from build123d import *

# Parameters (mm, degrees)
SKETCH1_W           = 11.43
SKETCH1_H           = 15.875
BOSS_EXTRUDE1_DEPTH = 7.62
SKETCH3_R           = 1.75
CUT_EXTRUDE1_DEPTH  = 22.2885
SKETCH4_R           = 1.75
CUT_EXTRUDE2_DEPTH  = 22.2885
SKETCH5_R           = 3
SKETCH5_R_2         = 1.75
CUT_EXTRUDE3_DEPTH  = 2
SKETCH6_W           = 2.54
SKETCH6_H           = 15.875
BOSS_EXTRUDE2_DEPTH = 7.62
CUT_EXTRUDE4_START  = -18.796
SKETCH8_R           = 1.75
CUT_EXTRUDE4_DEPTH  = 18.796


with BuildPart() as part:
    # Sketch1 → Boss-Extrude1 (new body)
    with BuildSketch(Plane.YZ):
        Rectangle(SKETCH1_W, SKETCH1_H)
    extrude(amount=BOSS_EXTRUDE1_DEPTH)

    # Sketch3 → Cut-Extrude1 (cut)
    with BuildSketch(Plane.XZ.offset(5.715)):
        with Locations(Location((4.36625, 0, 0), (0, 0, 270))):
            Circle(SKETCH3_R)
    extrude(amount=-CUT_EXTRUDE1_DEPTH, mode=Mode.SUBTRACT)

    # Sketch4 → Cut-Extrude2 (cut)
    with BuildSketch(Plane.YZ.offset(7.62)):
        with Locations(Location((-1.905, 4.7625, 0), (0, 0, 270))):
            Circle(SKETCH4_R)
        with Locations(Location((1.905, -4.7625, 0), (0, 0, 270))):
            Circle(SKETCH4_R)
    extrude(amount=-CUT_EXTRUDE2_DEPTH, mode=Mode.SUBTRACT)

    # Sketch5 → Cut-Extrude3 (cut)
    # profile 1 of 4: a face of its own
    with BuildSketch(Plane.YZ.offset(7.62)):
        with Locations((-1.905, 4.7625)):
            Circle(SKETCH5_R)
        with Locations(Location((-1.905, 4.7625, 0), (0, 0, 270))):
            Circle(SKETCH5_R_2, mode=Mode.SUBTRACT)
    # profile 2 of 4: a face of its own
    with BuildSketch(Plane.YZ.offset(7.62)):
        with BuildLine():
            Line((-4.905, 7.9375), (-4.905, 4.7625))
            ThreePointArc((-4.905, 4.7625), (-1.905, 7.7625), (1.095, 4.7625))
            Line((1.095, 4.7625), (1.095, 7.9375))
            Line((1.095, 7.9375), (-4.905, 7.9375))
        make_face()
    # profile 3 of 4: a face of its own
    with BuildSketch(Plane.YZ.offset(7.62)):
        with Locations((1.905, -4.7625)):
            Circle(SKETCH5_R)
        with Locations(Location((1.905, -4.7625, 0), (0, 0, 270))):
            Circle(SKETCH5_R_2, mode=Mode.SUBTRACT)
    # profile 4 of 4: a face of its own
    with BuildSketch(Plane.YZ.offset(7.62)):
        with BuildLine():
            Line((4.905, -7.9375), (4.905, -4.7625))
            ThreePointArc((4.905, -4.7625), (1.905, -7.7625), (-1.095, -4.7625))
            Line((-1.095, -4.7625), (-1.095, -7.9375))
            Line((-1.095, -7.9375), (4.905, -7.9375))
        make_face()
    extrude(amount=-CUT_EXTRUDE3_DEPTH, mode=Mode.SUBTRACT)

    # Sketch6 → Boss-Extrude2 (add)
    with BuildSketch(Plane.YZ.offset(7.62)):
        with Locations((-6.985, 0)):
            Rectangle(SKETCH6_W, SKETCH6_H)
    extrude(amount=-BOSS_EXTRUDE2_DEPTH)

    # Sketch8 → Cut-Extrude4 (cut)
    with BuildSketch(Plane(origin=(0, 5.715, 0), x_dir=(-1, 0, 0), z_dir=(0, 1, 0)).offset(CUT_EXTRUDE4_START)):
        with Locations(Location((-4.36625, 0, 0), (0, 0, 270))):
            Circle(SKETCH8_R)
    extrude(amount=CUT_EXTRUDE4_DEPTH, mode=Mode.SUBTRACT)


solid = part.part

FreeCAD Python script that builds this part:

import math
import FreeCAD as App
import Part
import Sketcher
from FreeCAD import Vector
Q = App.Units.Quantity


def add_polygon(sketch, points):
    """Adds a closed chain of lines whose ends are joined by coincident constraints."""
    first, n = sketch.GeometryCount, len(points)
    for a, b in zip(points, points[1:] + points[:1]):
        sketch.addGeometry(Part.LineSegment(App.Vector(*a, 0), App.Vector(*b, 0)), False)
    for i in range(n):
        sketch.addConstraint(Sketcher.Constraint("Coincident", first + i, 2, first + (i + 1) % n, 1))

doc = App.newDocument("Part")
body = doc.addObject("PartDesign::Body", "Body")

# Sketch on YZ plane
sketch1 = body.newObject("Sketcher::SketchObject", "Sketch")
sketch1.AttachmentSupport = (doc.getObject("YZ_Plane"), [""])
sketch1.MapMode = "FlatFace"
add_polygon(sketch1, [(-5.715, 7.9375), (-5.715, -7.9375), (5.715, -7.9375), (5.715, 7.9375)])  # lines 0-3
sketch1.addConstraint([
    Sketcher.Constraint("Vertical", 0),
    Sketcher.Constraint("Horizontal", 1),
    Sketcher.Constraint("Vertical", 2),
    Sketcher.Constraint("Horizontal", 3),
    Sketcher.Constraint("Symmetric", 0, 2, 2, 2, -1, 1),
    Sketcher.Constraint("DistanceX", 1, 1, 1, 2, Q("0.45 in")),
    Sketcher.Constraint("DistanceY", 0, 2, 0, 1, Q("0.625 in")),
])
pad1 = body.newObject("PartDesign::Pad", "Pad")
pad1.Profile = sketch1
pad1.Length = Q("0.3 in")

# Sketch on XZ plane
sketch2 = body.newObject("Sketcher::SketchObject", "Sketch001")
sketch2.AttachmentSupport = (doc.getObject("XZ_Plane"), [""])
sketch2.MapMode = "FlatFace"
sketch2.AttachmentOffset = App.Placement(Vector(0, 0, 0.225 * 25.4), App.Rotation())
sketch2.addGeometry(Part.Circle(Vector(4.36625, 0, 0), Vector(0, 0, 1), 1.75), False)
sketch2.addConstraint([
    Sketcher.Constraint("PointOnObject", 0, 3, -1),
    Sketcher.Constraint("Diameter", 0, Q("3.5 mm")),
    Sketcher.Constraint("DistanceX", -1, 1, 0, 3, Q("4.36625 mm")),
])
pocket1 = body.newObject("PartDesign::Pocket", "Pocket")
pocket1.Profile = sketch2
pocket1.Length = Q("0.8775 in")

# Sketch on YZ plane
sketch3 = body.newObject("Sketcher::SketchObject", "Sketch002")
sketch3.AttachmentSupport = (doc.getObject("YZ_Plane"), [""])
sketch3.MapMode = "FlatFace"
sketch3.AttachmentOffset = App.Placement(Vector(0, 0, 0.3 * 25.4), App.Rotation())
sketch3.addGeometry([
    Part.Circle(Vector(-1.905, 4.7625, 0), Vector(0, 0, 1), 1.75),
    Part.Circle(Vector(1.905, -4.7625, 0), Vector(0, 0, 1), 1.75),
], False)
sketch3.addConstraint([
    Sketcher.Constraint("Equal", 0, 1),
    Sketcher.Constraint("Symmetric", 0, 3, 1, 3, -1, 1),
    Sketcher.Constraint("Diameter", 0, Q("3.5 mm")),
    Sketcher.Constraint("DistanceX", 0, 3, 1, 3, Q("0.15 in")),
    Sketcher.Constraint("DistanceY", -1, 1, 0, 3, Q("0.1875 in")),
])
pocket2 = body.newObject("PartDesign::Pocket", "Pocket001")
pocket2.Profile = sketch3
pocket2.Length = Q("0.8775 in")

# Sketch on YZ plane
sketch4 = body.newObject("Sketcher::SketchObject", "Sketch003")
sketch4.AttachmentSupport = (doc.getObject("YZ_Plane"), [""])
sketch4.MapMode = "FlatFace"
sketch4.AttachmentOffset = App.Placement(Vector(0, 0, 0.3 * 25.4), App.Rotation())
sketch4.addGeometry([
    Part.ArcOfCircle(Part.Circle(Vector(-1.905, 4.7625, 0), Vector(0, 0, 1), 3), math.radians(180), math.radians(360)),  # 0
    Part.LineSegment(Vector(1.095, 4.7625, 0), Vector(1.095, 7.9375, 0)),  # 1
    Part.LineSegment(Vector(1.095, 7.9375, 0), Vector(-4.905, 7.9375, 0)),  # 2
    Part.LineSegment(Vector(-4.905, 7.9375, 0), Vector(-4.905, 4.7625, 0)),  # 3
    Part.Circle(Vector(-1.905, 4.7625, 0), Vector(0, 0, 1), 1.75),  # 4
    Part.ArcOfCircle(Part.Circle(Vector(1.905, -4.7625, 0), Vector(0, 0, 1), 3), math.radians(0), math.radians(180)),  # 5
    Part.LineSegment(Vector(-1.095, -4.7625, 0), Vector(-1.095, -7.9375, 0)),  # 6
    Part.LineSegment(Vector(-1.095, -7.9375, 0), Vector(4.905, -7.9375, 0)),  # 7
    Part.LineSegment(Vector(4.905, -7.9375, 0), Vector(4.905, -4.7625, 0)),  # 8
    Part.Circle(Vector(1.905, -4.7625, 0), Vector(0, 0, 1), 1.75),  # 9
], False)
sketch4.addConstraint([
    Sketcher.Constraint("Tangent", 0, 2, 1, 1),
    Sketcher.Constraint("Coincident", 1, 2, 2, 1),
    Sketcher.Constraint("Coincident", 2, 2, 3, 1),
    Sketcher.Constraint("Tangent", 3, 2, 0, 1),
    Sketcher.Constraint("Tangent", 5, 2, 6, 1),
    Sketcher.Constraint("Coincident", 6, 2, 7, 1),
    Sketcher.Constraint("Coincident", 7, 2, 8, 1),
    Sketcher.Constraint("Tangent", 8, 2, 5, 1),
    Sketcher.Constraint("Vertical", 1),
    Sketcher.Constraint("Horizontal", 2),
    Sketcher.Constraint("Vertical", 3),
    Sketcher.Constraint("Vertical", 6),
    Sketcher.Constraint("Horizontal", 7),
    Sketcher.Constraint("Vertical", 8),
    Sketcher.Constraint("Coincident", 4, 3, 0, 3),
    Sketcher.Constraint("Coincident", 9, 3, 5, 3),
    Sketcher.Constraint("Equal", 0, 5),
    Sketcher.Constraint("Equal", 4, 9),
    Sketcher.Constraint("Symmetric", 0, 3, 5, 3, -1, 1),
    Sketcher.Constraint("Equal", 3, 6),
    Sketcher.Constraint("DistanceY", 5, 3, 1, 2, Q("0.5 in")),
    Sketcher.Constraint("Diameter", 4, Q("3.5 mm")),
    Sketcher.Constraint("DistanceY", 1, 1, 1, 2, Q("0.125 in")),
    Sketcher.Constraint("Radius", 0, Q("3 mm")),
    Sketcher.Constraint("DistanceX", 0, 3, 5, 3, Q("0.15 in")),
])
pocket3 = body.newObject("PartDesign::Pocket", "Pocket002")
pocket3.Profile = sketch4
pocket3.Length = 2

# Sketch on YZ plane
sketch5 = body.newObject("Sketcher::SketchObject", "Sketch004")
sketch5.AttachmentSupport = (doc.getObject("YZ_Plane"), [""])
sketch5.MapMode = "FlatFace"
sketch5.AttachmentOffset = App.Placement(Vector(0, 0, 0.3 * 25.4), App.Rotation())
add_polygon(sketch5, [(-8.255, 7.9375), (-8.255, -7.9375), (-5.715, -7.9375), (-5.715, 7.9375)])  # lines 0-3
sketch5.addConstraint([
    Sketcher.Constraint("Vertical", 0),
    Sketcher.Constraint("Horizontal", 1),
    Sketcher.Constraint("Vertical", 2),
    Sketcher.Constraint("Horizontal", 3),
    Sketcher.Constraint("DistanceX", 1, 1, 1, 2, Q("0.1 in")),
    Sketcher.Constraint("DistanceY", 0, 2, 0, 1, Q("0.625 in")),
    Sketcher.Constraint("DistanceX", 0, 2, -1, 1, Q("0.325 in")),
    Sketcher.Constraint("DistanceY", 0, 2, -1, 1, Q("0.3125 in")),
])
pad2 = body.newObject("PartDesign::Pad", "Pad001")
pad2.Profile = sketch5
pad2.Length = Q("0.3 in")
pad2.Reversed = True

# Sketch on XZ plane
sketch6 = body.newObject("Sketcher::SketchObject", "Sketch005")
sketch6.AttachmentSupport = (doc.getObject("XZ_Plane"), [""])
sketch6.MapMode = "FlatFace"
sketch6.AttachmentOffset = App.Placement(Vector(0, 0, 0.515 * 25.4), App.Rotation())
sketch6.addGeometry(Part.Circle(Vector(4.36625, 0, 0), Vector(0, 0, 1), 1.75), False)
sketch6.addConstraint([
    Sketcher.Constraint("PointOnObject", 0, 3, -1),
    Sketcher.Constraint("Diameter", 0, Q("3.5 mm")),
    Sketcher.Constraint("DistanceX", -1, 1, 0, 3, Q("4.36625 mm")),
])
pocket4 = body.newObject("PartDesign::Pocket", "Pocket003")
pocket4.Profile = sketch6
pocket4.Length = Q("0.74 in")

doc.recompute()
